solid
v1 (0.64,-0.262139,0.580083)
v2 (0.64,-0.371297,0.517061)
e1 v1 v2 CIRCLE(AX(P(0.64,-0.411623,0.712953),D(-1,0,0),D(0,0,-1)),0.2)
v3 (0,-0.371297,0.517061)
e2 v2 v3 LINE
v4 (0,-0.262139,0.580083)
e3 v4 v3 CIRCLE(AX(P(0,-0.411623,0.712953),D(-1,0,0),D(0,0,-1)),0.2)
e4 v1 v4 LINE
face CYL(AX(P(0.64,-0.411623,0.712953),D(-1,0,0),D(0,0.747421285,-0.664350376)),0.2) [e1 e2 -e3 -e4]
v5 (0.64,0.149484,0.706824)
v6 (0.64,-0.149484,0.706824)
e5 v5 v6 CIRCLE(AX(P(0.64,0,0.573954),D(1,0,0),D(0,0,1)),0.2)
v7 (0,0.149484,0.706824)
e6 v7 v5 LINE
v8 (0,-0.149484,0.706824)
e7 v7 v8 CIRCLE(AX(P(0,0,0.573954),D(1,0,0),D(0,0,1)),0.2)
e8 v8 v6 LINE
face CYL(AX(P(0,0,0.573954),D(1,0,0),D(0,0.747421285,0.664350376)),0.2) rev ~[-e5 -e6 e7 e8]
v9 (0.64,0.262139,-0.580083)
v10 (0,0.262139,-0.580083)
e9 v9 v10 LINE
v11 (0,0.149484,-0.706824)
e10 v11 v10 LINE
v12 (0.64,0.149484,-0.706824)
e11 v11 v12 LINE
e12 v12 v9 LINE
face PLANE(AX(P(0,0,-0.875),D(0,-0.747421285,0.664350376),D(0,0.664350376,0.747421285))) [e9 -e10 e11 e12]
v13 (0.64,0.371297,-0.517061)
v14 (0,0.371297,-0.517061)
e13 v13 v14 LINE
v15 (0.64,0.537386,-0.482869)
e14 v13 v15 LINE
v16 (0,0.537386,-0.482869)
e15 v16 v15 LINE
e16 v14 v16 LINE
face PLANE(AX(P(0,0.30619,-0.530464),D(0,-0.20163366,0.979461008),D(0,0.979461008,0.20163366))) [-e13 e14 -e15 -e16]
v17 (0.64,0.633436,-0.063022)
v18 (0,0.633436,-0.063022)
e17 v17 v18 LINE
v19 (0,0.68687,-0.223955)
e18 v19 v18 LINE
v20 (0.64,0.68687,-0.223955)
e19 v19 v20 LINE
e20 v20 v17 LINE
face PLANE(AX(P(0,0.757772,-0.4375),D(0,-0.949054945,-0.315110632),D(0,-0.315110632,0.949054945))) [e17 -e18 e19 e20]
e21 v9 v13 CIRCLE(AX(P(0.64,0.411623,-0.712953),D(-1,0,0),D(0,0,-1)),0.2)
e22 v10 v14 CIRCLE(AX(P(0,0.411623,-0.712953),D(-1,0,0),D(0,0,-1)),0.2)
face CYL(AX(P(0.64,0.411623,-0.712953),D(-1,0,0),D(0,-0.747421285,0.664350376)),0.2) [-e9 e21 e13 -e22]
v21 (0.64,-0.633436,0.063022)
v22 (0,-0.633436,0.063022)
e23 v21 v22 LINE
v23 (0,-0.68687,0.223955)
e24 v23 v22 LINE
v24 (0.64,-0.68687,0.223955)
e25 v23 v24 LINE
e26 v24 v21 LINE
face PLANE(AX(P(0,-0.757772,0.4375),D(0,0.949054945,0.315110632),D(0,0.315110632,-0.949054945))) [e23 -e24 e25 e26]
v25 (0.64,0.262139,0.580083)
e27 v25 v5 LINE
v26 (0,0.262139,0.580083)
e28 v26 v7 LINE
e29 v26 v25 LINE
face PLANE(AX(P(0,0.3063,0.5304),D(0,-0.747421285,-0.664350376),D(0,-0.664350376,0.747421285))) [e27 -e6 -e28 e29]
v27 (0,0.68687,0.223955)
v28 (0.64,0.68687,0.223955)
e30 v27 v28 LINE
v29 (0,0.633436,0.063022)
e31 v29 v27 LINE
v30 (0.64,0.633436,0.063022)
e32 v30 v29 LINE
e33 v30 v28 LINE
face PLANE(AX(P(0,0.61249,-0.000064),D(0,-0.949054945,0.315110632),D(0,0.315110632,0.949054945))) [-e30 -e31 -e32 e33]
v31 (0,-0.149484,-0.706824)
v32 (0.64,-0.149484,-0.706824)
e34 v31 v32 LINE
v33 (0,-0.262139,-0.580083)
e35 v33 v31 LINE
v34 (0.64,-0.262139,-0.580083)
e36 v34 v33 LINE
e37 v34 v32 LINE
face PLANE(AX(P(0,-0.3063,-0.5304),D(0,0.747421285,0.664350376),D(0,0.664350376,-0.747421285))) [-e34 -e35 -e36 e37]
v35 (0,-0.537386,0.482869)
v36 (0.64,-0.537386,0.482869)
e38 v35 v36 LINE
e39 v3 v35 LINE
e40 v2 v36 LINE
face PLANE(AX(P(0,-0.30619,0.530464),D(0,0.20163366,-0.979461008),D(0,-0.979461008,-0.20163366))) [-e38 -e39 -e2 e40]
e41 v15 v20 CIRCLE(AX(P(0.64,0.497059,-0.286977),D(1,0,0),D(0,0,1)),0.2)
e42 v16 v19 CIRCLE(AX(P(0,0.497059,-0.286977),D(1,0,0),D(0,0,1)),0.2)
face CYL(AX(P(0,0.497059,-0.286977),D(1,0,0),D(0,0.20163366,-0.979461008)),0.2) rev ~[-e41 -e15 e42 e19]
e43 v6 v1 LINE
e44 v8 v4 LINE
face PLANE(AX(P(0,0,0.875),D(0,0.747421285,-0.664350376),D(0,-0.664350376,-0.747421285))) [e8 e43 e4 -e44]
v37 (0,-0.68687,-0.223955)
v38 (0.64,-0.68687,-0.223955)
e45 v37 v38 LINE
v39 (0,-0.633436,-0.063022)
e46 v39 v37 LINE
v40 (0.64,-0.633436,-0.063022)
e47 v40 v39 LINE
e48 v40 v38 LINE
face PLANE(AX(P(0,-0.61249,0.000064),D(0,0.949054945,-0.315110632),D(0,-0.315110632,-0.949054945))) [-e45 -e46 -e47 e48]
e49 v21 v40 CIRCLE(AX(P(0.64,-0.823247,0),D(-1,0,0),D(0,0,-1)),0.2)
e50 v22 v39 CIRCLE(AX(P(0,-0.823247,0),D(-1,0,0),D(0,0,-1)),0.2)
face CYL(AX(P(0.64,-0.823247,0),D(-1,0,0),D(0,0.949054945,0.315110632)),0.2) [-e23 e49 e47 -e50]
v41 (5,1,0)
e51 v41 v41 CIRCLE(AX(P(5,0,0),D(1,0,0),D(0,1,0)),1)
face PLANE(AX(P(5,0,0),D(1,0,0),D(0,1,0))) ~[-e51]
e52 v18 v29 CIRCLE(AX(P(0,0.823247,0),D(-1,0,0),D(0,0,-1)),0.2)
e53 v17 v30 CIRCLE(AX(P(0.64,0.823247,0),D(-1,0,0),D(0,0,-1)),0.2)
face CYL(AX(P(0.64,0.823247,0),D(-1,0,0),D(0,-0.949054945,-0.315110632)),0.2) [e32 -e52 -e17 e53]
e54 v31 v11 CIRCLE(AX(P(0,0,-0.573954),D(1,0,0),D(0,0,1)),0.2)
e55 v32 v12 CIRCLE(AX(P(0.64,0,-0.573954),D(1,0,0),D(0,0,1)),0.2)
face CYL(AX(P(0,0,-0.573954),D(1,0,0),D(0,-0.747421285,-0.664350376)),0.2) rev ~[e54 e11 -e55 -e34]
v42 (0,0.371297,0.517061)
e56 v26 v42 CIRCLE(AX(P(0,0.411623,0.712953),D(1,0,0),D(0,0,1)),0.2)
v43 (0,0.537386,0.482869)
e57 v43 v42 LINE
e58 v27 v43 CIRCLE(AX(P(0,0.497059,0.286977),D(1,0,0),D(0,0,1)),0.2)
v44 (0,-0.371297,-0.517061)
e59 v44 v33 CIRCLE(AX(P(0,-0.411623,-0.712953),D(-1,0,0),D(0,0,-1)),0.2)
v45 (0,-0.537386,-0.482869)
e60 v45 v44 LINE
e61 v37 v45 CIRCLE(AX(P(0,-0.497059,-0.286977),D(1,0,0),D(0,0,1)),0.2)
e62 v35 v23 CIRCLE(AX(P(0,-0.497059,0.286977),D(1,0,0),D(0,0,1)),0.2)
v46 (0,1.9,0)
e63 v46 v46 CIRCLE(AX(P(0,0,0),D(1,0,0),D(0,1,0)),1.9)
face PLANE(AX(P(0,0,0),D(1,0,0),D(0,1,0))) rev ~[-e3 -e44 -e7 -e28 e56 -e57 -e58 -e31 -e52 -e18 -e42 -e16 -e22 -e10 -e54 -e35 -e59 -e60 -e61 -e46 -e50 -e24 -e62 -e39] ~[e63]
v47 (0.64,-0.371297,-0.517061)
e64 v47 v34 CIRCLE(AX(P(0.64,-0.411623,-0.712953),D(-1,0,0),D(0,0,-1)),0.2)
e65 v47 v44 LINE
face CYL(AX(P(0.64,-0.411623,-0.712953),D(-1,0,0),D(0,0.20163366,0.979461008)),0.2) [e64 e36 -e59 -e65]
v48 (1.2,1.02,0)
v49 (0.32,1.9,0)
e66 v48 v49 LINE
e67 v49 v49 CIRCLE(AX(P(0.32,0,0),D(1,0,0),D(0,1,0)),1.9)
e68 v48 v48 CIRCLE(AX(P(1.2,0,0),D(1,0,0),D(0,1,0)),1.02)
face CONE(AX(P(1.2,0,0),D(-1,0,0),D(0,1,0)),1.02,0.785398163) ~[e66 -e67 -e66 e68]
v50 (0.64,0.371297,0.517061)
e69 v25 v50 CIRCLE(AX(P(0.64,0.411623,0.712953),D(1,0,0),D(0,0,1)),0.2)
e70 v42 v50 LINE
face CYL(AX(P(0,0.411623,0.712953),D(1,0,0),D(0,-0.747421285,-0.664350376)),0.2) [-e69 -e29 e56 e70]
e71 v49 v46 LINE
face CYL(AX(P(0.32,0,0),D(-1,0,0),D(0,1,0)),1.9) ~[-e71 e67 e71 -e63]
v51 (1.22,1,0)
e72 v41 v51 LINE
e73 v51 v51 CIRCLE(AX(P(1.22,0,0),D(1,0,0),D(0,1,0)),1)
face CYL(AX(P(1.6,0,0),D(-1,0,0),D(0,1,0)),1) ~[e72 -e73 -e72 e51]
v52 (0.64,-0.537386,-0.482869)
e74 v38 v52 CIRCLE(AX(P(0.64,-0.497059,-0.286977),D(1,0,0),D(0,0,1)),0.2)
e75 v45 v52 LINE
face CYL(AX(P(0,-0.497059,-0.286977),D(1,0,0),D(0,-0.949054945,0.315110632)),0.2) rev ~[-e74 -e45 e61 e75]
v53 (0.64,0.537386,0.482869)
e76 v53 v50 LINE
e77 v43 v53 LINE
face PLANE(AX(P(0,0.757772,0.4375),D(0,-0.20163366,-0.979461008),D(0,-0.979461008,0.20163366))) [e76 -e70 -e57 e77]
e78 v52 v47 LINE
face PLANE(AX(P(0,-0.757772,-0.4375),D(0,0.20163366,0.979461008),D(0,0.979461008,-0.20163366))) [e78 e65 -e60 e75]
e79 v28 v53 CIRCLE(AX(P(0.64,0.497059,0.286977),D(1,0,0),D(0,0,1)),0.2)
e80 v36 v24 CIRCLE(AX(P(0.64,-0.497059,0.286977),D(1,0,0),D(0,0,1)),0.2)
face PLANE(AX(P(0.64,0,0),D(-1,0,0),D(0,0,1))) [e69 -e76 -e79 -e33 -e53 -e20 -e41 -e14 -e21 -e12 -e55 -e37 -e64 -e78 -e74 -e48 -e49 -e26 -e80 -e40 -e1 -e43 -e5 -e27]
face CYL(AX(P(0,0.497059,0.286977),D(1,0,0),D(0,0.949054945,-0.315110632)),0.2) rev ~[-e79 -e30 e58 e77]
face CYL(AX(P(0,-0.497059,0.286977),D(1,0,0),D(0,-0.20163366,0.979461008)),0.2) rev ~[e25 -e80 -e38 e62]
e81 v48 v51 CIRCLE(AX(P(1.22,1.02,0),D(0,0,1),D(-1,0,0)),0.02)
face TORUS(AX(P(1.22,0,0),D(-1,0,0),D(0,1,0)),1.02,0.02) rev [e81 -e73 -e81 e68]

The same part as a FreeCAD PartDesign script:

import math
import FreeCAD as App
import Part
import Sketcher

V = App.Vector
Q = App.Units.Quantity


def edges_at(feature, points):
    """Names of the edges that pass closest to the given points."""
    edges = feature.Shape.Edges
    near = lambda p: min(range(len(edges)), key=lambda i: edges[i].distToShape(Part.Vertex(*p))[0])
    return sorted({f"Edge{near(p) + 1}" for p in points})


def add_polygon(sketch, points):
    """Adds a closed chain of lines whose ends are joined by coincident constraints."""
    first, n = sketch.GeometryCount, len(points)
    for a, b in zip(points, points[1:] + points[:1]):
        sketch.addGeometry(Part.LineSegment(App.Vector(*a, 0), App.Vector(*b, 0)), False)
    for i in range(n):
        sketch.addConstraint(Sketcher.Constraint("Coincident", first + i, 2, first + (i + 1) % n, 1))

doc = App.newDocument("Part")
params = doc.addObject("Spreadsheet::Sheet", "Params")
for row, (alias, value) in enumerate([
    ("sketch1_width", "5 mm"),
    ("sketch1_radius", "0.02 mm"),
    ("sketch1_width2", "0.32 mm"),
    ("sketch1_height", "1 mm"),
    ("revolution_angle", "360 deg"),
    ("pocket1_length", "0.64 mm"),
    ("fillet_radius", "0.2 mm"),
], start=1):
    params.set(f"A{row}", alias)
    params.set(f"B{row}", "=" + value)
    params.setAlias(f"B{row}", alias)

body = doc.addObject("PartDesign::Body", "Body")

# Sketch on XY plane
sketch1 = body.newObject("Sketcher::SketchObject", "Sketch")
sketch1.AttachmentSupport = (doc.getObject("XY_Plane"), [""])
sketch1.MapMode = "FlatFace"
sketch1.addGeometry(Part.LineSegment(V(0, 1.9, 0), V(0, 0, 0)), False)
sketch1.addGeometry(Part.LineSegment(V(0, 0, 0), V(5, 0, 0)), False)
sketch1.addGeometry(Part.LineSegment(V(5, 0, 0), V(5, 1, 0)), False)
sketch1.addGeometry(Part.LineSegment(V(5, 1, 0), V(1.22, 1, 0)), False)
sketch1.addGeometry(Part.ArcOfCircle(Part.Circle(V(1.22, 1.02, 0), V(0, 0, 1), 0.02), math.radians(180), math.radians(270)), False)
sketch1.addGeometry(Part.LineSegment(V(1.2, 1.02, 0), V(0.32, 1.9, 0)), False)
sketch1.addGeometry(Part.LineSegment(V(0.32, 1.9, 0), V(0, 1.9, 0)), False)
sketch1.addConstraint(Sketcher.Constraint("Coincident", 0, 2, 1, 1))
sketch1.addConstraint(Sketcher.Constraint("Coincident", 1, 2, 2, 1))
sketch1.addConstraint(Sketcher.Constraint("Coincident", 2, 2, 3, 1))
sketch1.addConstraint(Sketcher.Constraint("Tangent", 3, 2, 4, 2))
sketch1.addConstraint(Sketcher.Constraint("Coincident", 4, 1, 5, 1))
sketch1.addConstraint(Sketcher.Constraint("Coincident", 5, 2, 6, 1))
sketch1.addConstraint(Sketcher.Constraint("Coincident", 6, 2, 0, 1))
sketch1.addConstraint(Sketcher.Constraint("Vertical", 0))
sketch1.addConstraint(Sketcher.Constraint("Horizontal", 1))
sketch1.addConstraint(Sketcher.Constraint("Vertical", 2))
sketch1.addConstraint(Sketcher.Constraint("Horizontal", 3))
sketch1.addConstraint(Sketcher.Constraint("Horizontal", 6))
sketch1.addConstraint(Sketcher.Constraint("Coincident", 0, 2, -1, 1))
sketch1.addConstraint(Sketcher.Constraint("DistanceX", 1, 1, 1, 2, Q("5 mm")))
sketch1.addConstraint(Sketcher.Constraint("Radius", 4, Q("0.02 mm")))
sketch1.addConstraint(Sketcher.Constraint("DistanceX", 6, 2, 6, 1, Q("0.32 mm")))
sketch1.addConstraint(Sketcher.Constraint("DistanceX", -1, 1, 4, 1, Q("1.2 mm")))
sketch1.addConstraint(Sketcher.Constraint("DistanceY", 2, 1, 2, 2, Q("1 mm")))
sketch1.addConstraint(Sketcher.Constraint("Angle", 5, Q("135 deg")))
sketch1.addConstraint(Sketcher.Constraint("DistanceY", 3, 2, 4, 1, Q("0.02 mm")))
sketch1.setExpression("Constraints[13]", "Params.sketch1_width")
sketch1.setExpression("Constraints[14]", "Params.sketch1_radius")
sketch1.setExpression("Constraints[15]", "Params.sketch1_width2")
sketch1.setExpression("Constraints[17]", "Params.sketch1_height")
revolution = body.newObject("PartDesign::Revolution", "Revolution")
revolution.Profile = sketch1
revolution.ReferenceAxis = (sketch1, ["H_Axis"])
revolution.setExpression("Angle", "Params.revolution_angle")

# Sketch on YZ plane
sketch2 = body.newObject("Sketcher::SketchObject", "Sketch001")
sketch2.AttachmentSupport = (doc.getObject("YZ_Plane"), [""])
sketch2.MapMode = "FlatFace"
add_polygon(sketch2, [(0.31, 0.53), (0, 0), (-0.31, 0.53), (0, 0.88)])  # lines 0-3
sketch2.addConstraint(Sketcher.Constraint("Coincident", 0, 2, -1, 1))
sketch2.addConstraint(Sketcher.Constraint("Symmetric", 1, 2, 3, 2, -2))
sketch2.addConstraint(Sketcher.Constraint("PointOnObject", 2, 2, -2))
sketch2.addConstraint(Sketcher.Constraint("Distance", 2, Q("0.461 mm")))
sketch2.addConstraint(Sketcher.Constraint("DistanceY", -1, 1, 2, 2, Q("0.875 mm")))
sketch2.addConstraint(Sketcher.Constraint("Distance", 0, Q("0.6125 mm")))
pocket1 = body.newObject("PartDesign::Pocket", "Pocket")
pocket1.Profile = sketch2
pocket1.setExpression("Length", "Params.pocket1_length")
pocket1.Reversed = True
doc.recompute()

polarpattern = body.newObject("PartDesign::PolarPattern", "PolarPattern")
polarpattern.Originals = [pocket1]
polarpattern.Axis = (doc.getObject("X_Axis"), [""])
polarpattern.Angle = 360
polarpattern.Occurrences = 6
body.Tip = polarpattern
doc.recompute()

fillet = body.newObject("PartDesign::Fillet", "Fillet")
fillet.Base = (polarpattern, edges_at(polarpattern, [
    (0.32, 0.306, 0.53),
    (0.32, 0, 0.875),
    (0.32, -0.306, 0.53),
    (0.32, -0.613, 0),
    (0.32, -0.758, 0.438),
    (0.32, -0.758, -0.438),
    (0.32, -0.306, -0.53),
    (0.32, 0, -0.875),
    (0.32, 0.306, -0.53),
    (0.32, 0.758, -0.438),
    (0.32, 0.613, 0),
    (0.32, 0.758, 0.438),
]))
fillet.setExpression("Radius", "Params.fillet_radius")

doc.recompute()
